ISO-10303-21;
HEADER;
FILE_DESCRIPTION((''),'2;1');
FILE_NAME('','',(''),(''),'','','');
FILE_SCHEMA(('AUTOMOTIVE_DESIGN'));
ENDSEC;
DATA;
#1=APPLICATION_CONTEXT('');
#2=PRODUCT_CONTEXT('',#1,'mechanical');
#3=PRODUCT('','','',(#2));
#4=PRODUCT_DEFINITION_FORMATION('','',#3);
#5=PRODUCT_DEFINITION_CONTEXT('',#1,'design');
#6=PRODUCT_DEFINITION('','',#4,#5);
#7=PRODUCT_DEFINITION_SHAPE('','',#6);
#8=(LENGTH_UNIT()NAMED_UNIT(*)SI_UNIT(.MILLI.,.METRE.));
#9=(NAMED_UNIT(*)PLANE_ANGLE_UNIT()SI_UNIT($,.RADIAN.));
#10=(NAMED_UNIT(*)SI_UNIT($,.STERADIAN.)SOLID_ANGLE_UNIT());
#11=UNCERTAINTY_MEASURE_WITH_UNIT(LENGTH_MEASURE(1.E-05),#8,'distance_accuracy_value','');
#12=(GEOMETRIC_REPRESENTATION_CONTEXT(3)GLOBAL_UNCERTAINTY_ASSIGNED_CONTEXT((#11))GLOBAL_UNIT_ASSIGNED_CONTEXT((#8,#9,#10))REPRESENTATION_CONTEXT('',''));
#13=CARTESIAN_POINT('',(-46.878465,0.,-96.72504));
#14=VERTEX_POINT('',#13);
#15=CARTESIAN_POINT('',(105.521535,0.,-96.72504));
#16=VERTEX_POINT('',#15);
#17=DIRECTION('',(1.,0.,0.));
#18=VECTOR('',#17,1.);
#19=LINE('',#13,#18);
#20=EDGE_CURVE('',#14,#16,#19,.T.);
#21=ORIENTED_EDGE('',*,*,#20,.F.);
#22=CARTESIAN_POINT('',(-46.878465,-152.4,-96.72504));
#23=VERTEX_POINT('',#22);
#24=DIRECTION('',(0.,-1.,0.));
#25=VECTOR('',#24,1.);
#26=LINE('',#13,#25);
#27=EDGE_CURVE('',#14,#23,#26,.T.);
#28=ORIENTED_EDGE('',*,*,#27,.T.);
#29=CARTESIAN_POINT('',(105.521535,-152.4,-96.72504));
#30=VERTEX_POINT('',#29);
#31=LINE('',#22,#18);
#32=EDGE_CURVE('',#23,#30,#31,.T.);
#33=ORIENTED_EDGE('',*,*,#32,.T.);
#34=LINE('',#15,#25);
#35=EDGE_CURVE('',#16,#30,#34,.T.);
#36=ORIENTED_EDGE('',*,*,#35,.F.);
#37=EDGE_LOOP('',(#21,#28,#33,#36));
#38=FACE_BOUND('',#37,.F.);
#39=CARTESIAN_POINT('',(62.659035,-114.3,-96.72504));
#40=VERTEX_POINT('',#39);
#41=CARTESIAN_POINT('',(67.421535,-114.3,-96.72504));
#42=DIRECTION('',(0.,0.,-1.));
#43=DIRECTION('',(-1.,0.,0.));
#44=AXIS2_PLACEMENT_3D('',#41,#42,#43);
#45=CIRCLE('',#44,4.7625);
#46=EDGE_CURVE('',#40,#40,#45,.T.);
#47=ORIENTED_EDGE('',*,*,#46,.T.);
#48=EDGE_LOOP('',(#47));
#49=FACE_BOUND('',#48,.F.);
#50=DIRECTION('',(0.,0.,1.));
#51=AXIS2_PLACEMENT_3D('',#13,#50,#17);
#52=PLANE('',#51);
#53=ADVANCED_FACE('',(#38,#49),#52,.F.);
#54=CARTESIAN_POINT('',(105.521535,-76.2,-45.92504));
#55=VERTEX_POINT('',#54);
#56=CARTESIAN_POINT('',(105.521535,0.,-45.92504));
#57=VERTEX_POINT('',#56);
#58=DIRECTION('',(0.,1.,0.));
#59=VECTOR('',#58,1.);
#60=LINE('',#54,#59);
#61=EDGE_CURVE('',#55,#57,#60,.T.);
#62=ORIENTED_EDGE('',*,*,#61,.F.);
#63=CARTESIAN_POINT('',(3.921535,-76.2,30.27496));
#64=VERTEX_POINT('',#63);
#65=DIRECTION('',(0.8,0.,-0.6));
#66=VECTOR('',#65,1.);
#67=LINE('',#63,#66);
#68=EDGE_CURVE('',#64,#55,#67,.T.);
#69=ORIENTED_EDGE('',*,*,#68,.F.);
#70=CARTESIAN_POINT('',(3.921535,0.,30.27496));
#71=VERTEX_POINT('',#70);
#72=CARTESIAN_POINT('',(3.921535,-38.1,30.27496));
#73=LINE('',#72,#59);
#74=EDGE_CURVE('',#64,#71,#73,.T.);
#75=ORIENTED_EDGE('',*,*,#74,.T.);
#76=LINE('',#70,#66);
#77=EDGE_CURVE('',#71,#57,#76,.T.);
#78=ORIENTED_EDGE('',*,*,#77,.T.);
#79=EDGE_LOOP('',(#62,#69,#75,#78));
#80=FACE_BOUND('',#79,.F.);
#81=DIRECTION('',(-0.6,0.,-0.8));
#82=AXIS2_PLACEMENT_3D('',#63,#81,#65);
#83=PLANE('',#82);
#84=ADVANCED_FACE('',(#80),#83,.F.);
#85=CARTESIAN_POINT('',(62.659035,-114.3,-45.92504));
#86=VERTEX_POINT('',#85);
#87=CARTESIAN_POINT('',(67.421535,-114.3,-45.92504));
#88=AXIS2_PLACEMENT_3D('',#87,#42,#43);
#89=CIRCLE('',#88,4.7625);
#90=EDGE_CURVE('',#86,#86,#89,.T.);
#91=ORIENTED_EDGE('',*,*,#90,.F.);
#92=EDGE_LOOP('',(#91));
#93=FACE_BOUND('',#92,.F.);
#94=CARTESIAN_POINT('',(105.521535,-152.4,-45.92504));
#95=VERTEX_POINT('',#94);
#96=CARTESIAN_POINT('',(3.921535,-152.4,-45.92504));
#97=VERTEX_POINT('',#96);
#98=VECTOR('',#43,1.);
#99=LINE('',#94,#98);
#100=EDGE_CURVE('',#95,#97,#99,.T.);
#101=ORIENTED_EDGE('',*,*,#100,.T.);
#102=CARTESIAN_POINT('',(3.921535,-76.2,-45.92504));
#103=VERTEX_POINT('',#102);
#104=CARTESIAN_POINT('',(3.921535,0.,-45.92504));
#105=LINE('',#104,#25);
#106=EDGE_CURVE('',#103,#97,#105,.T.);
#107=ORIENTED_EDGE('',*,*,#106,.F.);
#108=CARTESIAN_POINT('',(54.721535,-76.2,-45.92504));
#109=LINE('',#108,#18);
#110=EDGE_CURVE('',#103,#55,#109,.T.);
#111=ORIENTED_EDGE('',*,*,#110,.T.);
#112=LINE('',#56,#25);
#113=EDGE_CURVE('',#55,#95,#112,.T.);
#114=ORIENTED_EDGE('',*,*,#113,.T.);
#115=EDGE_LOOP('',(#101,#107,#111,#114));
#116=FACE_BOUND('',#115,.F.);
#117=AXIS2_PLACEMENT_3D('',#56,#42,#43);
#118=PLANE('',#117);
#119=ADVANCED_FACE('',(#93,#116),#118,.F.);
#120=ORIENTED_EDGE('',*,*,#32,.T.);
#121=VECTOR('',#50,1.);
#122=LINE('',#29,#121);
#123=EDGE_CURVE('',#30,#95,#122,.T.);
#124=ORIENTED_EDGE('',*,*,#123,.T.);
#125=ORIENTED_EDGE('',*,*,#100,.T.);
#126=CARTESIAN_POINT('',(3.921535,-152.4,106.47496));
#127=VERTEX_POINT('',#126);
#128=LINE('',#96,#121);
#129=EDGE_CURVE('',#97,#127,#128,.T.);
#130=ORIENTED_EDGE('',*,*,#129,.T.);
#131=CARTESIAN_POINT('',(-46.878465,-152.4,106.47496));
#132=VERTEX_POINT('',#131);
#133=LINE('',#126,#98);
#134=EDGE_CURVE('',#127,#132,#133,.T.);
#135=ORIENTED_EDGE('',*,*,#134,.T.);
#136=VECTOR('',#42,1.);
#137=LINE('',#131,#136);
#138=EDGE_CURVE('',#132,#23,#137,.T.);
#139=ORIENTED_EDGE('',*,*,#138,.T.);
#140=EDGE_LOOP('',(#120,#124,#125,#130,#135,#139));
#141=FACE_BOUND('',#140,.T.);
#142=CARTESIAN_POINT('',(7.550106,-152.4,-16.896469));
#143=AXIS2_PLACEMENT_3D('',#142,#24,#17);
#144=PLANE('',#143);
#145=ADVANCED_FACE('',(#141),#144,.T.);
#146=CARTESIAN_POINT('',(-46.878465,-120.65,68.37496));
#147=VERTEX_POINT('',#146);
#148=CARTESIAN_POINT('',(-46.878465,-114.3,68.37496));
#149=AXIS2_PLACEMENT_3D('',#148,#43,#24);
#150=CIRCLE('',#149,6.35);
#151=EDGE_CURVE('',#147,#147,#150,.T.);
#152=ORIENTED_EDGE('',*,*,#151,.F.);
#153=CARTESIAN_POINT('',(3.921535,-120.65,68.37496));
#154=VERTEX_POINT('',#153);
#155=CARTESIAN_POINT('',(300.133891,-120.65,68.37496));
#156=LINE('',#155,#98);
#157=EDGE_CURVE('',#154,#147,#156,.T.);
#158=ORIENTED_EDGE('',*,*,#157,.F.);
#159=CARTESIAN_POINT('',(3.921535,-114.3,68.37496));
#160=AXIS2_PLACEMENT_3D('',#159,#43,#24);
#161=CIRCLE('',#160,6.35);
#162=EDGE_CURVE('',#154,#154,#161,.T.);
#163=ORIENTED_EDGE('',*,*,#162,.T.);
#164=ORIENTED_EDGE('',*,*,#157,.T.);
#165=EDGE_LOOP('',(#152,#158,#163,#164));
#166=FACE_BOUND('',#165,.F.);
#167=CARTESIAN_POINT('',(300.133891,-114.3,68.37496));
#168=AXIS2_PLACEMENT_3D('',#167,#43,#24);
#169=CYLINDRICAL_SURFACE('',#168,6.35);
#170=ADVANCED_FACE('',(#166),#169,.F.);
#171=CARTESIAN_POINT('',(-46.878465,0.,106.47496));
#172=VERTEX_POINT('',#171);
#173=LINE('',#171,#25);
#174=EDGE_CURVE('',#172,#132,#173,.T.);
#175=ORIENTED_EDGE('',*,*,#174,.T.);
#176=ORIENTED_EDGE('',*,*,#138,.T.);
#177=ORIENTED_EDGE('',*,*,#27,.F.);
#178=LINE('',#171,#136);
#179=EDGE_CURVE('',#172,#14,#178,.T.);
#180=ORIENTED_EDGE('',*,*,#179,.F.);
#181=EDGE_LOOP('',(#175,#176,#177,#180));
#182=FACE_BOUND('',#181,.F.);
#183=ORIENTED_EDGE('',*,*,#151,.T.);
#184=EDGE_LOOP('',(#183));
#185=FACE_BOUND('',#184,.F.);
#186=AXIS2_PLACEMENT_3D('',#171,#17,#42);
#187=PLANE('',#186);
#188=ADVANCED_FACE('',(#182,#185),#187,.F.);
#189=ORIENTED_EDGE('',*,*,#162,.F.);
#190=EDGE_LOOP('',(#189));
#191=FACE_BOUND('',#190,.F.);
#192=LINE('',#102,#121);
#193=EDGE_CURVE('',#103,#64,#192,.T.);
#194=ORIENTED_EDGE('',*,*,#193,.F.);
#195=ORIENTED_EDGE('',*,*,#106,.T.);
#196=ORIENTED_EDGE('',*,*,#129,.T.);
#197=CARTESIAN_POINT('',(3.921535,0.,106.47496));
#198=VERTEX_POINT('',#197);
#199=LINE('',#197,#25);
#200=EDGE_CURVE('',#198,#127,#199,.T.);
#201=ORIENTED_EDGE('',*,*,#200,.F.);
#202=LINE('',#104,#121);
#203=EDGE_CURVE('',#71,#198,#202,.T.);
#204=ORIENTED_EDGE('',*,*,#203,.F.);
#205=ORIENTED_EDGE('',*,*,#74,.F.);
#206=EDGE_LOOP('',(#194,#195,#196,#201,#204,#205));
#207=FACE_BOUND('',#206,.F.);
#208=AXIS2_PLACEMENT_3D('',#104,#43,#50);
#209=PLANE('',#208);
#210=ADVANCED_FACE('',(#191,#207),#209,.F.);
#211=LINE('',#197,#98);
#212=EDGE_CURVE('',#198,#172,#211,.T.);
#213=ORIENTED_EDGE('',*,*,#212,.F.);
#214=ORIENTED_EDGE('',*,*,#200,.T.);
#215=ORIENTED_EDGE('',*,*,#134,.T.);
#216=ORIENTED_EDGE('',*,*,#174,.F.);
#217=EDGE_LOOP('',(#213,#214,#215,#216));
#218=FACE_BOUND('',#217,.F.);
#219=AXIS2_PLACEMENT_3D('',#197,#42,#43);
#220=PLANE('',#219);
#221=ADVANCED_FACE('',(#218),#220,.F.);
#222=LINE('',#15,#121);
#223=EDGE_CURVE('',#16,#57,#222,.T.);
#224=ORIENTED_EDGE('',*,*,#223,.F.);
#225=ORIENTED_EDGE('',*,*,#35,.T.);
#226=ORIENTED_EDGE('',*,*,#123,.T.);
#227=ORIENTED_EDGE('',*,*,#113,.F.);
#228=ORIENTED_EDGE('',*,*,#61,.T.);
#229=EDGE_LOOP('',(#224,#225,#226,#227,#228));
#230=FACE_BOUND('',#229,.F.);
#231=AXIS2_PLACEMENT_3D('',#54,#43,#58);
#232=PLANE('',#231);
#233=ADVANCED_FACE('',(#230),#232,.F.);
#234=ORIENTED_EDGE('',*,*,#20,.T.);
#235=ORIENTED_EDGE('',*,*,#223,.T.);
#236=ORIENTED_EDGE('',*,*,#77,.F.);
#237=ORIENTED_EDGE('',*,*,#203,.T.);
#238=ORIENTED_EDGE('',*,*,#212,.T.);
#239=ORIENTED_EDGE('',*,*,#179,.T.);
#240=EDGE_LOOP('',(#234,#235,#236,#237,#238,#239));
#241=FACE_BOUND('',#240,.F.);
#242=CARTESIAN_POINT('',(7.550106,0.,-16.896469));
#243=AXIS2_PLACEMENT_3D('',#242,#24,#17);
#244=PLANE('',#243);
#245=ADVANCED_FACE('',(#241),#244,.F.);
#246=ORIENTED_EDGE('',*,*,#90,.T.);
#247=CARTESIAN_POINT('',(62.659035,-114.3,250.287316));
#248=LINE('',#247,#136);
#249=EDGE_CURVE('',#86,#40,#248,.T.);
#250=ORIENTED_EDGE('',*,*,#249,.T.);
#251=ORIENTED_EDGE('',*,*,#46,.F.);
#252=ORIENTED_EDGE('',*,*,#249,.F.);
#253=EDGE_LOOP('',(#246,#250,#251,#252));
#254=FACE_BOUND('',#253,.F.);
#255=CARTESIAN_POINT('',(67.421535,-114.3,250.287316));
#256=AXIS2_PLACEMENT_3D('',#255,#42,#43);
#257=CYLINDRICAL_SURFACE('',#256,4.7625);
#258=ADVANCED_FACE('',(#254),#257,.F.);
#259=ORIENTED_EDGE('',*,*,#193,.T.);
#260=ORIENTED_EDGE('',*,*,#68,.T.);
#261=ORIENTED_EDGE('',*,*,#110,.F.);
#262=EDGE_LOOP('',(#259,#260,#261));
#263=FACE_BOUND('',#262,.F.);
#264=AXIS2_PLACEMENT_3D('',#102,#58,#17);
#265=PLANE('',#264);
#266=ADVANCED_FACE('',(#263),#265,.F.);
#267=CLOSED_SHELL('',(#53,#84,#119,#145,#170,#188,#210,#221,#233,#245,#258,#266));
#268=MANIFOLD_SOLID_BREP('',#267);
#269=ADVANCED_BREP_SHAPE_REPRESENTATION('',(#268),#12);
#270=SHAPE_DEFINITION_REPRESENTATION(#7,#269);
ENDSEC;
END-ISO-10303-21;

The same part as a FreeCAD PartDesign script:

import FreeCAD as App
import Part
import Sketcher

V = App.Vector
Q = App.Units.Quantity


def add_polygon(sketch, points):
    """Adds a closed chain of lines whose ends are joined by coincident constraints."""
    first, n = sketch.GeometryCount, len(points)
    for a, b in zip(points, points[1:] + points[:1]):
        sketch.addGeometry(Part.LineSegment(App.Vector(*a, 0), App.Vector(*b, 0)), False)
    for i in range(n):
        sketch.addConstraint(Sketcher.Constraint("Coincident", first + i, 2, first + (i + 1) % n, 1))

doc = App.newDocument("Part")
body = doc.addObject("PartDesign::Body", "Body")

# Sketch on XZ plane
sketch1 = body.newObject("Sketcher::SketchObject", "Sketch")
sketch1.AttachmentSupport = (doc.getObject("XZ_Plane"), [""])
sketch1.MapMode = "FlatFace"
add_polygon(sketch1, [(4, 106), (-47, 106), (-47, -97), (106, -97), (106, -46), (4, -46)])  # lines 0-5
sketch1.addConstraint([
    Sketcher.Constraint("Horizontal", 0),
    Sketcher.Constraint("Vertical", 1),
    Sketcher.Constraint("Horizontal", 2),
    Sketcher.Constraint("Vertical", 3),
    Sketcher.Constraint("Horizontal", 4),
    Sketcher.Constraint("Vertical", 5),
    Sketcher.Constraint("Equal", 0, 3),
    Sketcher.Constraint("Equal", 2, 5),
    Sketcher.Constraint("DistanceX", 0, 2, 0, 1, Q("2 in")),
    Sketcher.Constraint("DistanceX", 2, 1, 2, 2, Q("6 in")),
    Sketcher.Constraint("DistanceY", -1, 1, 0, 2, 106.47496),
    Sketcher.Constraint("DistanceX", 0, 2, -1, 1, 46.878465),
])
pad1 = body.newObject("PartDesign::Pad", "Pad")
pad1.Profile = sketch1
pad1.Length = Q("6 in")

# Sketch on XY plane
sketch2 = body.newObject("Sketcher::SketchObject", "Sketch001")
sketch2.AttachmentSupport = (doc.getObject("XY_Plane"), [""])
sketch2.MapMode = "FlatFace"
sketch2.AttachmentOffset = App.Placement(V(0, 0, -45.92504), App.Rotation())
add_polygon(sketch2, [(4, 0), (4, -76), (106, -76), (106, 0)])  # lines 0-3
sketch2.addConstraint([
    Sketcher.Constraint("Vertical", 0),
    Sketcher.Constraint("Horizontal", 1),
    Sketcher.Constraint("Vertical", 2),
    Sketcher.Constraint("Horizontal", 3),
    Sketcher.Constraint("PointOnObject", 2, 2, -1),
    Sketcher.Constraint("DistanceX", 1, 1, 1, 2, Q("4 in")),
    Sketcher.Constraint("DistanceY", 0, 2, 0, 1, Q("3 in")),
    Sketcher.Constraint("DistanceX", -1, 1, 0, 2, 3.921535),
])
pad2 = body.newObject("PartDesign::Pad", "Pad001")
pad2.Profile = sketch2
pad2.Length = Q("3 in")

# Sketch on XZ plane
sketch3 = body.newObject("Sketcher::SketchObject", "Sketch002")
sketch3.AttachmentSupport = (doc.getObject("XZ_Plane"), [""])
sketch3.MapMode = "FlatFace"
sketch3.AttachmentOffset = App.Placement(V(0, 0, 3 * 25.4), App.Rotation())
add_polygon(sketch3, [(106, 30), (4, 30), (106, -46)])  # lines 0-2
sketch3.addConstraint([
    Sketcher.Constraint("Horizontal", 0),
    Sketcher.Constraint("Vertical", 2),
    Sketcher.Constraint("DistanceX", 0, 2, 0, 1, Q("4 in")),
    Sketcher.Constraint("DistanceY", 2, 1, 2, 2, Q("3 in")),
    Sketcher.Constraint("DistanceY", -1, 1, 0, 2, 30.27496),
    Sketcher.Constraint("DistanceX", -1, 1, 0, 2, 3.921535),
])
pocket1 = body.newObject("PartDesign::Pocket", "Pocket")
pocket1.Profile = sketch3
pocket1.Length = Q("3 in")

# Sketch on XY plane
sketch4 = body.newObject("Sketcher::SketchObject", "Sketch003")
sketch4.AttachmentSupport = (doc.getObject("XY_Plane"), [""])
sketch4.MapMode = "FlatFace"
sketch4.AttachmentOffset = App.Placement(V(0, 0, -45.92504), App.Rotation())
sketch4.addGeometry(Part.Circle(V(67.4, -114.3, 0), V(0, 0, 1), 4.8), False)
sketch4.addConstraint([
    Sketcher.Constraint("Diameter", 0, Q("0.375 in")),
    Sketcher.Constraint("DistanceY", 0, 3, -1, 1, Q("4.5 in")),
    Sketcher.Constraint("DistanceX", -1, 1, 0, 3, 67.421535),
])
doc.recompute()
hole = body.newObject("PartDesign::Hole", "Hole")
hole.Profile = sketch4
hole.ThreadType = "None"
hole.Diameter = Q("0.375 in")
hole.DepthType = "ThroughAll"

# Sketch on YZ plane
sketch5 = body.newObject("Sketcher::SketchObject", "Sketch004")
sketch5.AttachmentSupport = (doc.getObject("YZ_Plane"), [""])
sketch5.MapMode = "FlatFace"
sketch5.AttachmentOffset = App.Placement(V(0, 0, 3.921535), App.Rotation())
sketch5.addGeometry(Part.Circle(V(-114, 68, 0), V(0, 0, 1), 6), False)
sketch5.addConstraint([
    Sketcher.Constraint("Diameter", 0, Q("0.5 in")),
    Sketcher.Constraint("DistanceX", 0, 3, -1, 1, Q("4.5 in")),
    Sketcher.Constraint("DistanceY", -1, 1, 0, 3, 68.37496),
])
doc.recompute()
hole2 = body.newObject("PartDesign::Hole", "Hole001")
hole2.Profile = sketch5
hole2.ThreadType = "None"
hole2.Diameter = Q("0.5 in")
hole2.DepthType = "ThroughAll"

doc.recompute()
